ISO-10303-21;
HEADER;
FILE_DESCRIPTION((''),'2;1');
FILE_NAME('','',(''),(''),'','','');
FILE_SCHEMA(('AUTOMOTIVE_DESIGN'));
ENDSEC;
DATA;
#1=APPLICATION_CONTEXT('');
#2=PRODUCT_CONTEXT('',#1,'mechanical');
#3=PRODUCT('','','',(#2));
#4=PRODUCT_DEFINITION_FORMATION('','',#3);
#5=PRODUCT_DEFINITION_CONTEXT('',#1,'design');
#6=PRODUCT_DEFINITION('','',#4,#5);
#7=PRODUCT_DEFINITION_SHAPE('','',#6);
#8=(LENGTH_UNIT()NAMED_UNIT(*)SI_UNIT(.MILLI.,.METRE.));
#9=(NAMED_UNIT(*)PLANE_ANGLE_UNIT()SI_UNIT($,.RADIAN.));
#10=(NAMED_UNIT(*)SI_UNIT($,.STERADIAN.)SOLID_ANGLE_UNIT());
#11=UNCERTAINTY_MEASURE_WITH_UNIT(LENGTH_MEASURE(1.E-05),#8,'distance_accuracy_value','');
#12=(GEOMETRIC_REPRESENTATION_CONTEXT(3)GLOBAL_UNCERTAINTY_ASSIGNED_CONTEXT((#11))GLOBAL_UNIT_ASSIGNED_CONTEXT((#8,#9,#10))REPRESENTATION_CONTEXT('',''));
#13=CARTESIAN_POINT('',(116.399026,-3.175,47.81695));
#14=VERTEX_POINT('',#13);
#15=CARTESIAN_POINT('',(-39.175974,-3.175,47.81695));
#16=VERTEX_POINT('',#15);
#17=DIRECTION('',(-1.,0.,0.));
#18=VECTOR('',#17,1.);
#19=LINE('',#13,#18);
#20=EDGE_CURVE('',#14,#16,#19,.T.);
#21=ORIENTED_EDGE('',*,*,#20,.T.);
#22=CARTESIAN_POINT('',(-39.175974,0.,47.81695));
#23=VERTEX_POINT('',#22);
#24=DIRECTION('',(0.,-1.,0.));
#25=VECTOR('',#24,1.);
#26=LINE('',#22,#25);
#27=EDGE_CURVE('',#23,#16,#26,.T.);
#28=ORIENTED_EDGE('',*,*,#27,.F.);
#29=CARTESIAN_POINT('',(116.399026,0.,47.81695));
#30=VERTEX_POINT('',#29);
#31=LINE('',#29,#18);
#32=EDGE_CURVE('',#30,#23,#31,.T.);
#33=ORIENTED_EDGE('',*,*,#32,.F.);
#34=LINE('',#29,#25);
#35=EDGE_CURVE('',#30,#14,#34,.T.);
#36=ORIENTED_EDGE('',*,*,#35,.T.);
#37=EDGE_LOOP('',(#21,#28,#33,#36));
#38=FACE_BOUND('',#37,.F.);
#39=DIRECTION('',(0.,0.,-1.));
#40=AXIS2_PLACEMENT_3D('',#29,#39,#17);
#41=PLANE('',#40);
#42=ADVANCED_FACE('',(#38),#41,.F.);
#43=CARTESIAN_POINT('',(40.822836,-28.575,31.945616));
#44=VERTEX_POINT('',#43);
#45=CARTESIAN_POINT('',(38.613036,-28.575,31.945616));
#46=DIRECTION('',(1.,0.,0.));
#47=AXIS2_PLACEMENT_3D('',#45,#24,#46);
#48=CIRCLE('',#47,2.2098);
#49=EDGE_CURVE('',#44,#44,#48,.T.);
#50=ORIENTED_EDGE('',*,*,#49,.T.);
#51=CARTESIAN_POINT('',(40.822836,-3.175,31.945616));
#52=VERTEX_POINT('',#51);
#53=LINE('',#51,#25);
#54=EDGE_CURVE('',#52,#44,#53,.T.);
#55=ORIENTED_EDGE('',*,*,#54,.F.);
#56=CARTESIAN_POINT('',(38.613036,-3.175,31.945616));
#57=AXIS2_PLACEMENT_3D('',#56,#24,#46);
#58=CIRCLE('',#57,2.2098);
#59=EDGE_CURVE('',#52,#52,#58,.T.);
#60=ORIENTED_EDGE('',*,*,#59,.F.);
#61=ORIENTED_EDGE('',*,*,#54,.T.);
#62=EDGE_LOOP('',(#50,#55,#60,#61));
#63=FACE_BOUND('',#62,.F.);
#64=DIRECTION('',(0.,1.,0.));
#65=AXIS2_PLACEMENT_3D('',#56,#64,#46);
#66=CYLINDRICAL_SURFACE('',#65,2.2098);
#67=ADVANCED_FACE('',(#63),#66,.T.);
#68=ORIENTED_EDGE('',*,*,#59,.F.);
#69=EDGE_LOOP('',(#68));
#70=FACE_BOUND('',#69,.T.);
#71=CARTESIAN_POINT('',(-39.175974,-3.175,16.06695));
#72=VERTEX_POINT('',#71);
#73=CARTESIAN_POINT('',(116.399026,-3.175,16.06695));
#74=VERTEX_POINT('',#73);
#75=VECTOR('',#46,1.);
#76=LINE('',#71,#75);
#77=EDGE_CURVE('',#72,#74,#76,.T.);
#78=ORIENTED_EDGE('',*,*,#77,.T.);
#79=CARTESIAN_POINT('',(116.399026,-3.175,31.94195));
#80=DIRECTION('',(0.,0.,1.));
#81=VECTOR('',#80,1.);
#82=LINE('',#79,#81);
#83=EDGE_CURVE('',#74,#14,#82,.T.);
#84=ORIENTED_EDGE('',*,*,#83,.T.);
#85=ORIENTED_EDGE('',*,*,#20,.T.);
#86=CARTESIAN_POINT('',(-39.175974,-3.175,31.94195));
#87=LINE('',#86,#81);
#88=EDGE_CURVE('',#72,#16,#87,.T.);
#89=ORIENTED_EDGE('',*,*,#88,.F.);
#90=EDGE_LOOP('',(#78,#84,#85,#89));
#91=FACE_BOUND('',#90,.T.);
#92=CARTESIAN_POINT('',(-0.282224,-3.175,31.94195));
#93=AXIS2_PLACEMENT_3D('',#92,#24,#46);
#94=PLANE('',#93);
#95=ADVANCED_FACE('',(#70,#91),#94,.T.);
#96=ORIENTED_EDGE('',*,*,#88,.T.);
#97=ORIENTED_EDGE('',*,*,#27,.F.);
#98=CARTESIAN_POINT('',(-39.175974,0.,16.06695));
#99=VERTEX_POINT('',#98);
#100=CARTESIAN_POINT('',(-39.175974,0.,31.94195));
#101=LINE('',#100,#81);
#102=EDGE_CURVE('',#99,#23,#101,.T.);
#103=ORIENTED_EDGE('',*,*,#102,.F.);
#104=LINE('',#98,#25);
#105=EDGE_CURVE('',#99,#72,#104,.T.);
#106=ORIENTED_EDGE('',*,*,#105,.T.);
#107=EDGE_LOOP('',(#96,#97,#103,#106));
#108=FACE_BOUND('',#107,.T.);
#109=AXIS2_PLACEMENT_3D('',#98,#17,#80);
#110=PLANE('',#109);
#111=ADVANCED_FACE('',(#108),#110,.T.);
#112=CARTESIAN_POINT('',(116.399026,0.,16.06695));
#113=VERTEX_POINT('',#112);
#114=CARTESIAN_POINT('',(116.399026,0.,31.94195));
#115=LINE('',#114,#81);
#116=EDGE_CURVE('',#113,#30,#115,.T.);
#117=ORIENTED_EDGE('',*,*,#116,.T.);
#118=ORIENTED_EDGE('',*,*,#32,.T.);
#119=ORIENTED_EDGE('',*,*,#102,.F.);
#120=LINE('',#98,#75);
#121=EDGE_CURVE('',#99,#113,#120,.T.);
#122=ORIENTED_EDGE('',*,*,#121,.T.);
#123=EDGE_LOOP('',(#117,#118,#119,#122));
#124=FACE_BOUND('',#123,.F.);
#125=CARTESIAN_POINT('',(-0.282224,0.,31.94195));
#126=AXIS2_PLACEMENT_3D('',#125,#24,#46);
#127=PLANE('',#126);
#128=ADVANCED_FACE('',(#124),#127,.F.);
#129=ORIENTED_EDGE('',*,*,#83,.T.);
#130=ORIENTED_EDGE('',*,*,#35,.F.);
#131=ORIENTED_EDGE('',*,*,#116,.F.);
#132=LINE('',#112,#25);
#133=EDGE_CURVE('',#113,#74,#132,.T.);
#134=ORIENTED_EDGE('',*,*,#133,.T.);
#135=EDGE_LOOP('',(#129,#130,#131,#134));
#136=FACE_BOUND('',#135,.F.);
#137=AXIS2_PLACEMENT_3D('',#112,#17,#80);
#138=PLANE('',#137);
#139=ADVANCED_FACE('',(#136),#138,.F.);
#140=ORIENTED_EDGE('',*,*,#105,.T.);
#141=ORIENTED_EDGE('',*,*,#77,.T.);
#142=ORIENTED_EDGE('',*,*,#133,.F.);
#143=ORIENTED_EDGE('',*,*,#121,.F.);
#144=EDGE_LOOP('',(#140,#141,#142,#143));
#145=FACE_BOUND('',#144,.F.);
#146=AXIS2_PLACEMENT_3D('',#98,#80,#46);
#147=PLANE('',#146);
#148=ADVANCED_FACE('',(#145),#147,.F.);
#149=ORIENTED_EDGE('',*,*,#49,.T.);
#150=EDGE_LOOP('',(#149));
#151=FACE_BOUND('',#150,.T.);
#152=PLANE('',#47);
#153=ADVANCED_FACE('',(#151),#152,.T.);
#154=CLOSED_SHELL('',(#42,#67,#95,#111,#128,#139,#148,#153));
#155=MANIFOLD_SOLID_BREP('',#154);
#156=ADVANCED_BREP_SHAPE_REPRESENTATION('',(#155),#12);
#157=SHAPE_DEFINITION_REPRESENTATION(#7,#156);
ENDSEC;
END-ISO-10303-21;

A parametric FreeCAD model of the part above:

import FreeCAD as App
import Part
import Sketcher

V = App.Vector
Q = App.Units.Quantity


def add_polygon(sketch, points):
    """Adds a closed chain of lines whose ends are joined by coincident constraints."""
    first, n = sketch.GeometryCount, len(points)
    for a, b in zip(points, points[1:] + points[:1]):
        sketch.addGeometry(Part.LineSegment(App.Vector(*a, 0), App.Vector(*b, 0)), False)
    for i in range(n):
        sketch.addConstraint(Sketcher.Constraint("Coincident", first + i, 2, first + (i + 1) % n, 1))

doc = App.newDocument("Part")
body = doc.addObject("PartDesign::Body", "Body")

sketch1 = body.newObject("Sketcher::SketchObject", "Sketch")
sketch1.AttachmentSupport = (doc.getObject("XZ_Plane"), [""])
sketch1.MapMode = "FlatFace"
add_polygon(sketch1, [(-39, 48), (-39, 16), (116, 16), (116, 48)])
sketch1.addConstraint([
    Sketcher.Constraint("Vertical", 0),
    Sketcher.Constraint("Horizontal", 1),
    Sketcher.Constraint("Vertical", 2),
    Sketcher.Constraint("Horizontal", 3),
    Sketcher.Constraint("DistanceY", 0, 2, 0, 1, Q("1.25 in")),
    Sketcher.Constraint("DistanceX", 1, 1, 1, 2, Q("6.125 in")),
    Sketcher.Constraint("DistanceY", -1, 1, 0, 2, Q("16.06695 mm")),
    Sketcher.Constraint("DistanceX", 0, 2, -1, 1, Q("39.175974 mm")),
])
pad1 = body.newObject("PartDesign::Pad", "Pad")
pad1.Profile = sketch1
pad1.Length = Q("0.125 in")

sketch2 = body.newObject("Sketcher::SketchObject", "Sketch001")
sketch2.AttachmentSupport = (doc.getObject("XZ_Plane"), [""])
sketch2.MapMode = "FlatFace"
sketch2.AttachmentOffset = App.Placement(V(0, 0, 0.125 * 25.4), App.Rotation())
sketch2.addGeometry(Part.Circle(V(38.6, 31.9, 0), V(0, 0, 1), 2.2), False)
sketch2.addConstraint([
    Sketcher.Constraint("Diameter", 0, Q("0.174 in")),
    Sketcher.Constraint("DistanceX", -1, 1, 0, 3, Q("38.613036 mm")),
    Sketcher.Constraint("DistanceY", -1, 1, 0, 3, Q("31.945616 mm")),
])
pad2 = body.newObject("PartDesign::Pad", "Pad001")
pad2.Profile = sketch2
pad2.Length = Q("1 in")

doc.recompute()
